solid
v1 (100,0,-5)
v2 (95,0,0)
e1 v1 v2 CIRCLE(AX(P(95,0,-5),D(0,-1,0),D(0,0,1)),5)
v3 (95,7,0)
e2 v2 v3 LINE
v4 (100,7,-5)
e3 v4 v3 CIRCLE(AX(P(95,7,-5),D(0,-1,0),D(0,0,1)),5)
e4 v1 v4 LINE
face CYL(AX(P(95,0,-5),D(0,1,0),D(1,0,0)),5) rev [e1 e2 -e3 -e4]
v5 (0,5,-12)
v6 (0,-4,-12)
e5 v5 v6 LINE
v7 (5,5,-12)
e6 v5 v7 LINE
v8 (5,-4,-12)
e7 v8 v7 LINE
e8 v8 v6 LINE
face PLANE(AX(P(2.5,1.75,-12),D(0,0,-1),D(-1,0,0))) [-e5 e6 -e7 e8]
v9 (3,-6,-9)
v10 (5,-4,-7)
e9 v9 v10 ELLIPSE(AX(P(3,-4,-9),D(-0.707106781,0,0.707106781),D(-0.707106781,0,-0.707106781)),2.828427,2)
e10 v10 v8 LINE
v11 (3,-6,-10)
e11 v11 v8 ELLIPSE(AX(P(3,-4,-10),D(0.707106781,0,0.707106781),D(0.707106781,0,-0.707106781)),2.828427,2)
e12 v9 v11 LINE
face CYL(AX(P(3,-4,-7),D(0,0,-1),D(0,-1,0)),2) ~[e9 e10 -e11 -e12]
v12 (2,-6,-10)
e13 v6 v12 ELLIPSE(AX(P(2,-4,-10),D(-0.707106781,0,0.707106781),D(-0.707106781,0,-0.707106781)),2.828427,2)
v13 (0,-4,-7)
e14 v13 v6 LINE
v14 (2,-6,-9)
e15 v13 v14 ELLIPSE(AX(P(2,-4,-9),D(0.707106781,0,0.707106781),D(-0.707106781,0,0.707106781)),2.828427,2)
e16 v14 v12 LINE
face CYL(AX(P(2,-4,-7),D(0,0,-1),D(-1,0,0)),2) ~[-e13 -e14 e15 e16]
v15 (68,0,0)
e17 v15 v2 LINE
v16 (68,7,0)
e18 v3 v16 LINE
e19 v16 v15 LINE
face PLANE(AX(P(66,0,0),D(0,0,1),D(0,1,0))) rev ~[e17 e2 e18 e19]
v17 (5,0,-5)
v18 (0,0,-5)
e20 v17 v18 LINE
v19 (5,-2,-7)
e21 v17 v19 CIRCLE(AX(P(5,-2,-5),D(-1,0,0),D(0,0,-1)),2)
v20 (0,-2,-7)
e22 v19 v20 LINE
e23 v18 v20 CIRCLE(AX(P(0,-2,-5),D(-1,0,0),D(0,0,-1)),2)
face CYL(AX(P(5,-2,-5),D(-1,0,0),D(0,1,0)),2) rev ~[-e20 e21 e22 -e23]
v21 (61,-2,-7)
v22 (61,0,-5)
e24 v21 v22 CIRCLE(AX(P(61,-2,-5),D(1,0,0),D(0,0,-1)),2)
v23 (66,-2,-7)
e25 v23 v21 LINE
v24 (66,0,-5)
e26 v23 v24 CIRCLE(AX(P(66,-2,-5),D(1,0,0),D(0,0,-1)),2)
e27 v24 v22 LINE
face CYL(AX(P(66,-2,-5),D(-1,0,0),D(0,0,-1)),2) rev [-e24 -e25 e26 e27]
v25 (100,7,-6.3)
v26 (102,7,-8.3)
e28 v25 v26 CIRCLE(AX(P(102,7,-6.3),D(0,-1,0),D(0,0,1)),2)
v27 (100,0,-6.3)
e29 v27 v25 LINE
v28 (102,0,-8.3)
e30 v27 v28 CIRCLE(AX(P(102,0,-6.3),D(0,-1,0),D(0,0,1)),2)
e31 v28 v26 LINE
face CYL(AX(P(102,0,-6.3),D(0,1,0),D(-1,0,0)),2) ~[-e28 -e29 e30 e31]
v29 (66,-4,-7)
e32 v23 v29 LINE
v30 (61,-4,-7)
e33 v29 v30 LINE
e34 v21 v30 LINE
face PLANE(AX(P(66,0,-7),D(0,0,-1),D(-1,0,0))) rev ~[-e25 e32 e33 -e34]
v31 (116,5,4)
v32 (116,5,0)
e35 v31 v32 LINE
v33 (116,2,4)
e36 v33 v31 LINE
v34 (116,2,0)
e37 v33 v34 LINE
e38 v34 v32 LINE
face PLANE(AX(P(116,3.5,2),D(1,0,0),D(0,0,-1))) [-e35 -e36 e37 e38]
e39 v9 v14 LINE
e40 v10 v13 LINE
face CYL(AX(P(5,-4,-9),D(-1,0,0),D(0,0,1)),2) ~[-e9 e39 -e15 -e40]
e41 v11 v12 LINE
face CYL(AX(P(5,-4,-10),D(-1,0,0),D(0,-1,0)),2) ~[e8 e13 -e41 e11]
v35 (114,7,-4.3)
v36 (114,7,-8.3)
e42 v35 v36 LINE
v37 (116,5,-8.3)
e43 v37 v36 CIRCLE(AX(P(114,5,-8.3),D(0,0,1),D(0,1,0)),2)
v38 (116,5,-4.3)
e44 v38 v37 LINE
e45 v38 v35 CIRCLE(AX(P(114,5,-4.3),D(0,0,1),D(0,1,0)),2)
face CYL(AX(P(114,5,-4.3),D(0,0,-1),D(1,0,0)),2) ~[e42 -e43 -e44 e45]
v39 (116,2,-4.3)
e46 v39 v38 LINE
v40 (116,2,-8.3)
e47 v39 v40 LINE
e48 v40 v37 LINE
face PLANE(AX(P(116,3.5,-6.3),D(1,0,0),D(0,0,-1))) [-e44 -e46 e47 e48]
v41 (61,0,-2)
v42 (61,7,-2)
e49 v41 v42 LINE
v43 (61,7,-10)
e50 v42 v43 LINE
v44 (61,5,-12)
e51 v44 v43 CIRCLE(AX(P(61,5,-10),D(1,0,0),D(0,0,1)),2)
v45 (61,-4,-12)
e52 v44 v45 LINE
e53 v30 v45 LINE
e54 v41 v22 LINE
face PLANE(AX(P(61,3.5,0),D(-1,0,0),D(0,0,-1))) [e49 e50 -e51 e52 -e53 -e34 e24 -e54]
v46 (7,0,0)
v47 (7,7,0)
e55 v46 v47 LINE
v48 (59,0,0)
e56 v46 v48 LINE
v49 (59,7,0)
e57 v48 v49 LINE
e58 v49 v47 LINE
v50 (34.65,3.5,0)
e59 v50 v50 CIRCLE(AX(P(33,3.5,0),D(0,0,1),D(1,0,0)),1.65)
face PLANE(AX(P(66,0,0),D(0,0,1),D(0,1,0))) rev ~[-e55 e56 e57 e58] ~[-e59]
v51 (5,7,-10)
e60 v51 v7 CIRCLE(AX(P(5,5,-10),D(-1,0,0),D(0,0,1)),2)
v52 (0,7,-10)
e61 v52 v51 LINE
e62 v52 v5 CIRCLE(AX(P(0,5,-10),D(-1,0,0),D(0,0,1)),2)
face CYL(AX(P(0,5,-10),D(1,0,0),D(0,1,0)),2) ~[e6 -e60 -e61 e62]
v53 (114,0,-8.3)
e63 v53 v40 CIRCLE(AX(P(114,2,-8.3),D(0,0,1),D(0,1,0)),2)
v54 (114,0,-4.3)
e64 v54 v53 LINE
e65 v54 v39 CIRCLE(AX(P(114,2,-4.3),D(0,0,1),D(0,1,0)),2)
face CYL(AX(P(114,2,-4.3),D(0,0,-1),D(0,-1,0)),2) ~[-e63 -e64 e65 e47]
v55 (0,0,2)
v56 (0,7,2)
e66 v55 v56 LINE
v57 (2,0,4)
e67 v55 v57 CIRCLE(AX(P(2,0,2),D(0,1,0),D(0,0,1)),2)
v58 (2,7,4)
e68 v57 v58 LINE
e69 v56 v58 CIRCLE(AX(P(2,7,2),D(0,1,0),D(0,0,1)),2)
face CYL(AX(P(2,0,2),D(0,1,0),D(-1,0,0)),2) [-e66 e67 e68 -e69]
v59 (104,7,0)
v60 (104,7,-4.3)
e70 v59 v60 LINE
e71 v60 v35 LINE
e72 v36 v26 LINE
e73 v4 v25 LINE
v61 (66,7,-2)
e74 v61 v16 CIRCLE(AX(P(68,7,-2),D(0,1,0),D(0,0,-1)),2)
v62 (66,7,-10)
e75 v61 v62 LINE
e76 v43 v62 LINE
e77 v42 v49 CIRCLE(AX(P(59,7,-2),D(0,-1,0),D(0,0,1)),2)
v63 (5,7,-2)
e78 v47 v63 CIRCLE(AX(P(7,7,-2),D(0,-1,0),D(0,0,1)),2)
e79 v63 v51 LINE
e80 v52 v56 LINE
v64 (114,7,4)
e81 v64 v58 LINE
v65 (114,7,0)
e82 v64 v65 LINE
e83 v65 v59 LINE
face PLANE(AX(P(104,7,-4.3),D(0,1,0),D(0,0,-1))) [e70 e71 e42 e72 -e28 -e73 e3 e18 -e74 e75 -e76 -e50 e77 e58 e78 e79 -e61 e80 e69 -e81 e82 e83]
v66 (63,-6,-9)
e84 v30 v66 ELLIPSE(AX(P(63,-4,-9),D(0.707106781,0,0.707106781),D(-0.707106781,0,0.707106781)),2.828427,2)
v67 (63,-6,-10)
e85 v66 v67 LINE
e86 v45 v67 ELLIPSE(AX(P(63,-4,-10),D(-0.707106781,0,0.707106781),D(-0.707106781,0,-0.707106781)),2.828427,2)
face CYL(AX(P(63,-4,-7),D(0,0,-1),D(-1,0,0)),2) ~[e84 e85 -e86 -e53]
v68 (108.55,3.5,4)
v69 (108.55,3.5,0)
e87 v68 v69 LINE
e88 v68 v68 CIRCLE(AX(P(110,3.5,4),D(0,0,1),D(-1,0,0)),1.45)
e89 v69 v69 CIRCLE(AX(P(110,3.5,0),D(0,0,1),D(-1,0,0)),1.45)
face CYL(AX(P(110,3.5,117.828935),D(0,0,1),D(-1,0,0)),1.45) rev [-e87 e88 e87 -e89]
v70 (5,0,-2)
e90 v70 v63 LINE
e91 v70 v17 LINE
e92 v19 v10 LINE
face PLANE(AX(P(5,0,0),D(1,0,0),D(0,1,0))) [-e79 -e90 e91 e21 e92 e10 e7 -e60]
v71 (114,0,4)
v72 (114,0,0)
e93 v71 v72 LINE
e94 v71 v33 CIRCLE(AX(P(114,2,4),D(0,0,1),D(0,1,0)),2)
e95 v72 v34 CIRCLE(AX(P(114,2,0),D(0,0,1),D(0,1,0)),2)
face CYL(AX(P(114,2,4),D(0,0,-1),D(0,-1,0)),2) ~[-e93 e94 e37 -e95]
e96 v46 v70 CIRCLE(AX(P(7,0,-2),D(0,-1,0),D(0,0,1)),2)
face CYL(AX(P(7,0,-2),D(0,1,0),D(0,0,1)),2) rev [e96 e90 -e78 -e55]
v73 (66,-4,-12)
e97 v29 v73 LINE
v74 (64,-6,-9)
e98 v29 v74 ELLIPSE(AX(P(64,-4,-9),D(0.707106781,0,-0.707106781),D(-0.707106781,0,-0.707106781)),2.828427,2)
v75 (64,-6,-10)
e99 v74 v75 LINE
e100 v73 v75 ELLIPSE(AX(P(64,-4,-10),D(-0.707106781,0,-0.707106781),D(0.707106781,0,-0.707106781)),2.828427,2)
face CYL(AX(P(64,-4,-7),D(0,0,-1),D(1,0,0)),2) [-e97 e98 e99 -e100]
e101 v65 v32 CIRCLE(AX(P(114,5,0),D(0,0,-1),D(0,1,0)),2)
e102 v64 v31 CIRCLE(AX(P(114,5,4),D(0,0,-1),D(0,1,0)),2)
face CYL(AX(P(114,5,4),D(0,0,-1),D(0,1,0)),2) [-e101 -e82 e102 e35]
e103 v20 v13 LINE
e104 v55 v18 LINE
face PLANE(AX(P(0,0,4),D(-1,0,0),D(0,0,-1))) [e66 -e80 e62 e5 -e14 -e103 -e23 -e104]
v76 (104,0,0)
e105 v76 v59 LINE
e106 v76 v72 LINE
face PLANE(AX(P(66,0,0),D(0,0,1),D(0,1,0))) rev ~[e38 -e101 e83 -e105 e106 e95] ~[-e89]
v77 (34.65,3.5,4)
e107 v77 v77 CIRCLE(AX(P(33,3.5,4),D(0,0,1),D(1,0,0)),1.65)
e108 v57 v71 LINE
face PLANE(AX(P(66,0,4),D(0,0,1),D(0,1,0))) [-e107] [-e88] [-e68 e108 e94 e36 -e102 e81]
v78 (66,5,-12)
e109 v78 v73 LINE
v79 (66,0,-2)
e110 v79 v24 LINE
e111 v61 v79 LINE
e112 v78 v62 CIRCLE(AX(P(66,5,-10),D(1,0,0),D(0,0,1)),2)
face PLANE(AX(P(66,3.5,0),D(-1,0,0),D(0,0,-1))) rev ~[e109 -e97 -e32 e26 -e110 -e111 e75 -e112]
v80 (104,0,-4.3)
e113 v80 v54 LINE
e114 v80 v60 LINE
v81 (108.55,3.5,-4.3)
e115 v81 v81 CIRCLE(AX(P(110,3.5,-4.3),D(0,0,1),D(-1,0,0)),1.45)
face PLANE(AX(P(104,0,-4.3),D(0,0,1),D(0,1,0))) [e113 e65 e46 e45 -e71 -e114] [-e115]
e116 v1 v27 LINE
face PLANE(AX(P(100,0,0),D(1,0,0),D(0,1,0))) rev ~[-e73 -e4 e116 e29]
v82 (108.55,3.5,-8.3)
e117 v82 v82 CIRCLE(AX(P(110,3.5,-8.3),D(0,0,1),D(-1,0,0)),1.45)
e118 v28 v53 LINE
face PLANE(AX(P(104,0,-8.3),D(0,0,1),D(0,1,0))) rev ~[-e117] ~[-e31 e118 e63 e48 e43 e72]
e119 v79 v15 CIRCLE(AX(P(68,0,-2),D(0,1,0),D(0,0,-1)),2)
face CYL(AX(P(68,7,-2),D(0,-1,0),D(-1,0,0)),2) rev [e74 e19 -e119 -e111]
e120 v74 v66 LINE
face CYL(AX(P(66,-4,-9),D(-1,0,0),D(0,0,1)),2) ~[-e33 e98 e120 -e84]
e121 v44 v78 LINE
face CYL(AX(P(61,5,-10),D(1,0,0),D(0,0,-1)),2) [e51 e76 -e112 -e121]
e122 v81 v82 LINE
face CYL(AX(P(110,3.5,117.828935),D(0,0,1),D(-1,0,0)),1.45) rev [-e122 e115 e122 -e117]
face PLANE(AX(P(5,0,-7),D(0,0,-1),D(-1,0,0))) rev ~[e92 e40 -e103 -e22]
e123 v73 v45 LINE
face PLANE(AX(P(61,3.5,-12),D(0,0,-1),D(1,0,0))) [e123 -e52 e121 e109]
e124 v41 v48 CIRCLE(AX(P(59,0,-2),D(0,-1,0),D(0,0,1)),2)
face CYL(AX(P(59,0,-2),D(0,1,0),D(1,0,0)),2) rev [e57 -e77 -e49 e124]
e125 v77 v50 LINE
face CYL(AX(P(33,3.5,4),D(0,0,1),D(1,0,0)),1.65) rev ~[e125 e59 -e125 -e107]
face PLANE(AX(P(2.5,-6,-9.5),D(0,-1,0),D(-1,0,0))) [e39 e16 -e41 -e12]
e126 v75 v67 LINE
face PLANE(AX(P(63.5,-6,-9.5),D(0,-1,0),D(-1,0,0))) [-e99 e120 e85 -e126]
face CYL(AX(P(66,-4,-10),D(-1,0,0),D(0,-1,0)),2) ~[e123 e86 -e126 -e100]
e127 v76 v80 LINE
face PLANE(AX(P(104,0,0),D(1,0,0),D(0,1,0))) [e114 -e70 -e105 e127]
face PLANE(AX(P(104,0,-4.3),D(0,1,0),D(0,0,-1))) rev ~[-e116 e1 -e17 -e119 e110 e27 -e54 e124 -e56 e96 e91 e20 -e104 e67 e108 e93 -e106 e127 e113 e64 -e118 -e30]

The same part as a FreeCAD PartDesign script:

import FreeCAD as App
import Part
import Sketcher
from FreeCAD import Vector


def edges_at(feature, points):
    """Names of the edges that pass closest to the given points."""
    edges = feature.Shape.Edges
    near = lambda p: min(range(len(edges)), key=lambda i: edges[i].distToShape(Part.Vertex(*p))[0])
    return sorted({f"Edge{near(p) + 1}" for p in points})

doc = App.newDocument("Part")
body = doc.addObject("PartDesign::Body", "Body")

sketch1 = doc.addObject("Sketcher::SketchObject", "Sketch")
body.addObject(sketch1)
sketch1.AttachmentSupport = (doc.XZ_Plane, [""])
sketch1.MapMode = "FlatFace"
sketch1.addGeometry([
    Part.LineSegment(Vector(0, 0, 0), Vector(0, 4, 0)),
    Part.LineSegment(Vector(0, 4, 0), Vector(66, 4, 0)),
    Part.LineSegment(Vector(66, 4, 0), Vector(66, 0, 0)),
    Part.LineSegment(Vector(66, 0, 0), Vector(0, 0, 0)),
], False)
sketch1.addConstraint([
    Sketcher.Constraint("Coincident", 0, 2, 1, 1),
    Sketcher.Constraint("Coincident", 1, 2, 2, 1),
    Sketcher.Constraint("Coincident", 2, 2, 3, 1),
    Sketcher.Constraint("Coincident", 3, 2, 0, 1),
    Sketcher.Constraint("Vertical", 0),
    Sketcher.Constraint("Horizontal", 1),
    Sketcher.Constraint("Vertical", 2),
    Sketcher.Constraint("Horizontal", 3),
    Sketcher.Constraint("Coincident", 3, 2, -1, 1),
    Sketcher.Constraint("DistanceX", 1, 1, 1, 2, 66.0),
    Sketcher.Constraint("DistanceY", 0, 1, 0, 2, 4.0),
])
pad1 = doc.addObject("PartDesign::Pad", "Pad")
body.addObject(pad1)
pad1.Profile = sketch1
pad1.Length = 7
pad1.Reversed = True

sketch2 = doc.addObject("Sketcher::SketchObject", "Sketch001")
body.addObject(sketch2)
sketch2.AttachmentSupport = (doc.XY_Plane, [""])
sketch2.MapMode = "FlatFace"
sketch2.AttachmentOffset = App.Placement(Vector(0, 0, 4), App.Rotation())
sketch2.addGeometry(Part.Circle(Vector(33, 3.5, 0), Vector(0, 0, 1), 1.6), False)
sketch2.addConstraint([
    Sketcher.Constraint("Diameter", 0, 3.3),
    Sketcher.Constraint("DistanceX", -1, 1, 0, 3, 33.0),
    Sketcher.Constraint("DistanceY", -1, 1, 0, 3, 3.5),
])
pocket1 = doc.addObject("PartDesign::Pocket", "Pocket")
body.addObject(pocket1)
pocket1.Profile = sketch2
pocket1.Type = "ThroughAll"

sketch3 = doc.addObject("Sketcher::SketchObject", "Sketch002")
body.addObject(sketch3)
sketch3.AttachmentSupport = (doc.XY_Plane, [""])
sketch3.MapMode = "FlatFace"
sketch3.addGeometry([
    Part.LineSegment(Vector(66, 3.5, 0), Vector(66, 0, 0)),
    Part.LineSegment(Vector(66, 0, 0), Vector(61, 0, 0)),
    Part.LineSegment(Vector(61, 0, 0), Vector(61, 3.5, 0)),
    Part.LineSegment(Vector(61, 3.5, 0), Vector(66, 3.5, 0)),
    Part.LineSegment(Vector(5, 3.5, 0), Vector(5, 0, 0)),
    Part.LineSegment(Vector(5, 0, 0), Vector(0, 0, 0)),
    Part.LineSegment(Vector(0, 0, 0), Vector(0, 3.5, 0)),
    Part.LineSegment(Vector(0, 3.5, 0), Vector(5, 3.5, 0)),
], False)
sketch3.addConstraint([
    Sketcher.Constraint("Coincident", 0, 2, 1, 1),
    Sketcher.Constraint("Coincident", 1, 2, 2, 1),
    Sketcher.Constraint("Coincident", 2, 2, 3, 1),
    Sketcher.Constraint("Coincident", 3, 2, 0, 1),
    Sketcher.Constraint("Coincident", 4, 2, 5, 1),
    Sketcher.Constraint("Coincident", 5, 2, 6, 1),
    Sketcher.Constraint("Coincident", 6, 2, 7, 1),
    Sketcher.Constraint("Coincident", 7, 2, 4, 1),
    Sketcher.Constraint("Vertical", 0),
    Sketcher.Constraint("Horizontal", 1),
    Sketcher.Constraint("Vertical", 2),
    Sketcher.Constraint("Horizontal", 3),
    Sketcher.Constraint("Vertical", 4),
    Sketcher.Constraint("Horizontal", 5),
    Sketcher.Constraint("Vertical", 6),
    Sketcher.Constraint("Horizontal", 7),
    Sketcher.Constraint("Coincident", 5, 2, -1, 1),
    Sketcher.Constraint("PointOnObject", 0, 2, -1),
    Sketcher.Constraint("Horizontal", 3, 2, 6, 2),
    Sketcher.Constraint("Equal", 3, 5),
    Sketcher.Constraint("DistanceX", 1, 2, 1, 1, 5.0),
    Sketcher.Constraint("DistanceY", 0, 2, 0, 1, 3.5),
    Sketcher.Constraint("DistanceX", -1, 1, 0, 2, 66.0),
])
pad2 = doc.addObject("PartDesign::Pad", "Pad001")
body.addObject(pad2)
pad2.Profile = sketch3
pad2.Length = 12
pad2.Reversed = True

sketch4 = doc.addObject("Sketcher::SketchObject", "Sketch003")
body.addObject(sketch4)
sketch4.AttachmentSupport = (doc.XZ_Plane, [""])
sketch4.MapMode = "FlatFace"
sketch4.addGeometry([
    Part.LineSegment(Vector(66, -12, 0), Vector(66, -7, 0)),
    Part.LineSegment(Vector(66, -7, 0), Vector(61, -7, 0)),
    Part.LineSegment(Vector(61, -7, 0), Vector(61, -12, 0)),
    Part.LineSegment(Vector(61, -12, 0), Vector(66, -12, 0)),
    Part.LineSegment(Vector(5, -12, 0), Vector(5, -7, 0)),
    Part.LineSegment(Vector(5, -7, 0), Vector(0, -7, 0)),
    Part.LineSegment(Vector(0, -7, 0), Vector(0, -12, 0)),
    Part.LineSegment(Vector(0, -12, 0), Vector(5, -12, 0)),
], False)
sketch4.addConstraint([
    Sketcher.Constraint("Coincident", 0, 2, 1, 1),
    Sketcher.Constraint("Coincident", 1, 2, 2, 1),
    Sketcher.Constraint("Coincident", 2, 2, 3, 1),
    Sketcher.Constraint("Coincident", 3, 2, 0, 1),
    Sketcher.Constraint("Coincident", 4, 2, 5, 1),
    Sketcher.Constraint("Coincident", 5, 2, 6, 1),
    Sketcher.Constraint("Coincident", 6, 2, 7, 1),
    Sketcher.Constraint("Coincident", 7, 2, 4, 1),
    Sketcher.Constraint("Vertical", 0),
    Sketcher.Constraint("Horizontal", 1),
    Sketcher.Constraint("Vertical", 2),
    Sketcher.Constraint("Horizontal", 3),
    Sketcher.Constraint("Vertical", 4),
    Sketcher.Constraint("Horizontal", 5),
    Sketcher.Constraint("Vertical", 6),
    Sketcher.Constraint("Horizontal", 7),
    Sketcher.Constraint("PointOnObject", 5, 2, -2),
    Sketcher.Constraint("Horizontal", 1, 2, 4, 2),
    Sketcher.Constraint("Horizontal", 3, 2, 6, 2),
    Sketcher.Constraint("Equal", 3, 5),
    Sketcher.Constraint("Equal", 7, 0),
    Sketcher.Constraint("DistanceX", 1, 2, 1, 1, 5.0),
    Sketcher.Constraint("DistanceX", -1, 1, 0, 2, 66.0),
    Sketcher.Constraint("DistanceY", 0, 2, -1, 1, 7.0),
])
pad3 = doc.addObject("PartDesign::Pad", "Pad002")
body.addObject(pad3)
pad3.Profile = sketch4
pad3.Length = 6

sketch5 = doc.addObject("Sketcher::SketchObject", "Sketch004")
body.addObject(sketch5)
sketch5.AttachmentSupport = (doc.YZ_Plane, [""])
sketch5.MapMode = "FlatFace"
sketch5.AttachmentOffset = App.Placement(Vector(0, 0, 66), App.Rotation())
sketch5.addGeometry([
    Part.LineSegment(Vector(7, 4, 0), Vector(0, 4, 0)),
    Part.LineSegment(Vector(0, 4, 0), Vector(0, 0, 0)),
    Part.LineSegment(Vector(0, 0, 0), Vector(7, 0, 0)),
    Part.LineSegment(Vector(7, 0, 0), Vector(7, 4, 0)),
], False)
sketch5.addConstraint([
    Sketcher.Constraint("Coincident", 0, 2, 1, 1),
    Sketcher.Constraint("Coincident", 1, 2, 2, 1),
    Sketcher.Constraint("Coincident", 2, 2, 3, 1),
    Sketcher.Constraint("Coincident", 3, 2, 0, 1),
    Sketcher.Constraint("Horizontal", 0),
    Sketcher.Constraint("Vertical", 1),
    Sketcher.Constraint("Horizontal", 2),
    Sketcher.Constraint("Vertical", 3),
    Sketcher.Constraint("Coincident", 1, 2, -1, 1),
    Sketcher.Constraint("DistanceX", 0, 2, 0, 1, 7.0),
    Sketcher.Constraint("DistanceY", 1, 2, 1, 1, 4.0),
])
pad4 = doc.addObject("PartDesign::Pad", "Pad003")
body.addObject(pad4)
pad4.Profile = sketch5
pad4.Length = 50

sketch6 = doc.addObject("Sketcher::SketchObject", "Sketch005")
body.addObject(sketch6)
sketch6.AttachmentSupport = (doc.XZ_Plane, [""])
sketch6.MapMode = "FlatFace"
sketch6.AttachmentOffset = App.Placement(Vector(0, 0, -3.5), App.Rotation())
sketch6.addGeometry([
    Part.LineSegment(Vector(61, -12, 0), Vector(61, 0, 0)),
    Part.LineSegment(Vector(61, 0, 0), Vector(66, 0, 0)),
    Part.LineSegment(Vector(66, 0, 0), Vector(66, -12, 0)),
    Part.LineSegment(Vector(66, -12, 0), Vector(61, -12, 0)),
    Part.LineSegment(Vector(0, -12, 0), Vector(0, 0, 0)),
    Part.LineSegment(Vector(0, 0, 0), Vector(5, 0, 0)),
    Part.LineSegment(Vector(5, 0, 0), Vector(5, -12, 0)),
    Part.LineSegment(Vector(5, -12, 0), Vector(0, -12, 0)),
], False)
sketch6.addConstraint([
    Sketcher.Constraint("Coincident", 0, 2, 1, 1),
    Sketcher.Constraint("Coincident", 1, 2, 2, 1),
    Sketcher.Constraint("Coincident", 2, 2, 3, 1),
    Sketcher.Constraint("Coincident", 3, 2, 0, 1),
    Sketcher.Constraint("Coincident", 4, 2, 5, 1),
    Sketcher.Constraint("Coincident", 5, 2, 6, 1),
    Sketcher.Constraint("Coincident", 6, 2, 7, 1),
    Sketcher.Constraint("Coincident", 7, 2, 4, 1),
    Sketcher.Constraint("Vertical", 0),
    Sketcher.Constraint("Horizontal", 1),
    Sketcher.Constraint("Vertical", 2),
    Sketcher.Constraint("Horizontal", 3),
    Sketcher.Constraint("Vertical", 4),
    Sketcher.Constraint("Horizontal", 5),
    Sketcher.Constraint("Vertical", 6),
    Sketcher.Constraint("Horizontal", 7),
    Sketcher.Constraint("Coincident", 4, 2, -1, 1),
    Sketcher.Constraint("PointOnObject", 0, 2, -1),
    Sketcher.Constraint("Horizontal", 3, 2, 6, 2),
    Sketcher.Constraint("Equal", 3, 5),
    Sketcher.Constraint("DistanceX", 1, 1, 1, 2, 5.0),
    Sketcher.Constraint("DistanceY", 0, 1, 0, 2, 12.0),
    Sketcher.Constraint("DistanceX", -1, 1, 0, 2, 61.0),
])
pad5 = doc.addObject("PartDesign::Pad", "Pad004")
body.addObject(pad5)
pad5.Profile = sketch6
pad5.Length = 3.5
pad5.Reversed = True
doc.recompute()

fillet = doc.addObject("PartDesign::Fillet", "Fillet")
body.addObject(fillet)
fillet.Base = (pad5, edges_at(pad5, [
    (66, -6, -9.5),
    (63.5, -6, -7),
    (61, -6, -9.5),
    (63.5, -6, -12),
    (5, -6, -9.5),
    (2.5, -6, -7),
    (0, -6, -9.5),
    (2.5, -6, -12),
]))
fillet.Radius = 2
doc.recompute()

fillet2 = doc.addObject("PartDesign::Fillet", "Fillet001")
body.addObject(fillet2)
fillet2.Base = (fillet, edges_at(fillet, [
    (61, 3.5, 0),
    (5, 3.5, 0),
    (63.5, 0, -7),
    (2.5, 0, -7),
    (66, 3.5, 0),
    (116, 0, 2),
    (116, 7, 2),
    (0, 3.5, 4),
    (63.5, 7, -12),
    (2.5, 7, -12),
]))
fillet2.Radius = 2

sketch7 = doc.addObject("Sketcher::SketchObject", "Sketch006")
body.addObject(sketch7)
sketch7.AttachmentSupport = (doc.XY_Plane, [""])
sketch7.MapMode = "FlatFace"
sketch7.addGeometry([
    Part.LineSegment(Vector(104, 7, 0), Vector(104, 0, 0)),
    Part.LineSegment(Vector(104, 0, 0), Vector(100, 0, 0)),
    Part.LineSegment(Vector(100, 0, 0), Vector(100, 7, 0)),
    Part.LineSegment(Vector(100, 7, 0), Vector(104, 7, 0)),
], False)
sketch7.addConstraint([
    Sketcher.Constraint("Coincident", 0, 2, 1, 1),
    Sketcher.Constraint("Coincident", 1, 2, 2, 1),
    Sketcher.Constraint("Coincident", 2, 2, 3, 1),
    Sketcher.Constraint("Coincident", 3, 2, 0, 1),
    Sketcher.Constraint("Vertical", 0),
    Sketcher.Constraint("Horizontal", 1),
    Sketcher.Constraint("Vertical", 2),
    Sketcher.Constraint("Horizontal", 3),
    Sketcher.Constraint("PointOnObject", 0, 2, -1),
    Sketcher.Constraint("DistanceX", 1, 2, 1, 1, 4.0),
    Sketcher.Constraint("DistanceY", 0, 2, 0, 1, 7.0),
    Sketcher.Constraint("DistanceX", -1, 1, 0, 2, 104.0),
])
pad6 = doc.addObject("PartDesign::Pad", "Pad005")
body.addObject(pad6)
pad6.Profile = sketch7
pad6.Length = 8.3
pad6.Reversed = True

sketch8 = doc.addObject("Sketcher::SketchObject", "Sketch007")
body.addObject(sketch8)
sketch8.AttachmentSupport = (doc.YZ_Plane, [""])
sketch8.MapMode = "FlatFace"
sketch8.AttachmentOffset = App.Placement(Vector(0, 0, 104), App.Rotation())
sketch8.addGeometry([
    Part.LineSegment(Vector(7, -4.3, 0), Vector(0, -4.3, 0)),
    Part.LineSegment(Vector(0, -4.3, 0), Vector(0, -8.3, 0)),
    Part.LineSegment(Vector(0, -8.3, 0), Vector(7, -8.3, 0)),
    Part.LineSegment(Vector(7, -8.3, 0), Vector(7, -4.3, 0)),
], False)
sketch8.addConstraint([
    Sketcher.Constraint("Coincident", 0, 2, 1, 1),
    Sketcher.Constraint("Coincident", 1, 2, 2, 1),
    Sketcher.Constraint("Coincident", 2, 2, 3, 1),
    Sketcher.Constraint("Coincident", 3, 2, 0, 1),
    Sketcher.Constraint("Horizontal", 0),
    Sketcher.Constraint("Vertical", 1),
    Sketcher.Constraint("Horizontal", 2),
    Sketcher.Constraint("Vertical", 3),
    Sketcher.Constraint("PointOnObject", 0, 2, -2),
    Sketcher.Constraint("DistanceX", 0, 2, 0, 1, 7.0),
    Sketcher.Constraint("DistanceY", 1, 2, 1, 1, 4.0),
    Sketcher.Constraint("DistanceY", 0, 2, -1, 1, 4.3),
])
pad7 = doc.addObject("PartDesign::Pad", "Pad006")
body.addObject(pad7)
pad7.Profile = sketch8
pad7.Length = 12

sketch9 = doc.addObject("Sketcher::SketchObject", "Sketch008")
body.addObject(sketch9)
sketch9.AttachmentSupport = (doc.XY_Plane, [""])
sketch9.MapMode = "FlatFace"
sketch9.addGeometry(Part.Circle(Vector(110, 3.5, 0), Vector(0, 0, 1), 1.4), False)
sketch9.addConstraint([
    Sketcher.Constraint("Diameter", 0, 2.9),
    Sketcher.Constraint("DistanceX", -1, 1, 0, 3, 110.0),
    Sketcher.Constraint("DistanceY", -1, 1, 0, 3, 3.5),
])
pocket2 = doc.addObject("PartDesign::Pocket", "Pocket001")
body.addObject(pocket2)
pocket2.Profile = sketch9
pocket2.Type = "ThroughAll"
pocket2.Midplane = True
doc.recompute()

fillet3 = doc.addObject("PartDesign::Fillet", "Fillet002")
body.addObject(fillet3)
fillet3.Base = (pocket2, edges_at(pocket2, [(116, 7, -6.3), (116, 0, -6.3)]))
fillet3.Radius = 2
doc.recompute()

fillet4 = doc.addObject("PartDesign::Fillet", "Fillet003")
body.addObject(fillet4)
fillet4.Base = (fillet3, edges_at(fillet3, [(100, 3.5, 0)]))
fillet4.Radius = 5
doc.recompute()

fillet5 = doc.addObject("PartDesign::Fillet", "Fillet004")
body.addObject(fillet5)
fillet5.Base = (fillet4, edges_at(fillet4, [(100, 3.5, -8.3)]))
fillet5.Radius = 2

doc.recompute()
